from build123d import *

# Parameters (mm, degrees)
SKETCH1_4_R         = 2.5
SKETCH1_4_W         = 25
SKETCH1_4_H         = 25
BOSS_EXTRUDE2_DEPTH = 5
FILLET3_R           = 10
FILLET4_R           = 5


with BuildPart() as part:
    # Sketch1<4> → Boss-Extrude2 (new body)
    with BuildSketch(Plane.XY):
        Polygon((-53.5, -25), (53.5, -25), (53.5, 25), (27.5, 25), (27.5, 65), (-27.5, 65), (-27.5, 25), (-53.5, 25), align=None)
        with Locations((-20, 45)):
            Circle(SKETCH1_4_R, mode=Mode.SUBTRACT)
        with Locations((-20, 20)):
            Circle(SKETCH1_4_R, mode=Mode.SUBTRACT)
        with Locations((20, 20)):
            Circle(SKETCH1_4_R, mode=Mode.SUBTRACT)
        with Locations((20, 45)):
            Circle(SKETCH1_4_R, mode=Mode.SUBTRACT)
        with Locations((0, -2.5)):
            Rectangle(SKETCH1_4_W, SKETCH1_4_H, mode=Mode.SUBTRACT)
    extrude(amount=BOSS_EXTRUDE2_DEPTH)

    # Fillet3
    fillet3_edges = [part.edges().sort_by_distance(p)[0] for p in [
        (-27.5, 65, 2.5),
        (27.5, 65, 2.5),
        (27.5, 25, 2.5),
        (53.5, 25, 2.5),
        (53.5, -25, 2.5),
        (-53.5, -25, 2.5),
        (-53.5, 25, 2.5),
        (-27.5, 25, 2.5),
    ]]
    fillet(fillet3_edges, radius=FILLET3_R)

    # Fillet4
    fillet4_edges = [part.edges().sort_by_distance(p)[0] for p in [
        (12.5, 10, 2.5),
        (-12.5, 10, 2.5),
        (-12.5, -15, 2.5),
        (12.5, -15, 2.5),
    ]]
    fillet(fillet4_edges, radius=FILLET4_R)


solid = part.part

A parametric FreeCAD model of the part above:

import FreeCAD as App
import Part
import Sketcher


def edges_at(feature, points):
    """Names of the edges that pass closest to the given points."""
    edges = feature.Shape.Edges
    near = lambda p: min(range(len(edges)), key=lambda i: edges[i].distToShape(Part.Vertex(*p))[0])
    return sorted({f"Edge{near(p) + 1}" for p in points})


def add_polygon(sketch, points):
    """Adds a closed chain of lines whose ends are joined by coincident constraints."""
    first, n = sketch.GeometryCount, len(points)
    for a, b in zip(points, points[1:] + points[:1]):
        sketch.addGeometry(Part.LineSegment(App.Vector(*a, 0), App.Vector(*b, 0)), False)
    for i in range(n):
        sketch.addConstraint(Sketcher.Constraint("Coincident", first + i, 2, first + (i + 1) % n, 1))

doc = App.newDocument("Part")
body = doc.addObject("PartDesign::Body", "Body")

# Sketch on XY plane
sketch1 = body.newObject("Sketcher::SketchObject", "Sketch")
sketch1.AttachmentSupport = (doc.getObject("XY_Plane"), [""])
sketch1.MapMode = "FlatFace"
add_polygon(sketch1, [(-53.5, -25), (53.5, -25), (53.5, 25), (27.5, 25), (27.5, 65), (-27.5, 65), (-27.5, 25), (-53.5, 25)])  # lines 0-7
add_polygon(sketch1, [(12.5, -15), (-12.5, -15), (-12.5, 10), (12.5, 10)])  # lines 8-11
sketch1.addGeometry(Part.Circle(App.Vector(-20, 20, 0), App.Vector(0, 0, 1), 2.5), False)  # 12
sketch1.addGeometry(Part.Circle(App.Vector(-20, 45, 0), App.Vector(0, 0, 1), 2.5), False)  # 13
sketch1.addGeometry(Part.Circle(App.Vector(20, 20, 0), App.Vector(0, 0, 1), 2.5), False)  # 14
sketch1.addGeometry(Part.Circle(App.Vector(20, 45, 0), App.Vector(0, 0, 1), 2.5), False)  # 15
sketch1.addConstraint(Sketcher.Constraint("Horizontal", 0))
sketch1.addConstraint(Sketcher.Constraint("Vertical", 1))
sketch1.addConstraint(Sketcher.Constraint("Horizontal", 2))
sketch1.addConstraint(Sketcher.Constraint("Vertical", 3))
sketch1.addConstraint(Sketcher.Constraint("Horizontal", 4))
sketch1.addConstraint(Sketcher.Constraint("Vertical", 5))
sketch1.addConstraint(Sketcher.Constraint("Horizontal", 6))
sketch1.addConstraint(Sketcher.Constraint("Vertical", 7))
sketch1.addConstraint(Sketcher.Constraint("Horizontal", 8))
sketch1.addConstraint(Sketcher.Constraint("Vertical", 9))
sketch1.addConstraint(Sketcher.Constraint("Horizontal", 10))
sketch1.addConstraint(Sketcher.Constraint("Vertical", 11))
sketch1.addConstraint(Sketcher.Constraint("Equal", 12, 13))
sketch1.addConstraint(Sketcher.Constraint("Equal", 13, 14))
sketch1.addConstraint(Sketcher.Constraint("Equal", 14, 15))
sketch1.addConstraint(Sketcher.Constraint("Symmetric", 0, 2, 6, 2, -1, 1))
sketch1.addConstraint(Sketcher.Constraint("Symmetric", 12, 3, 14, 3, -2))
sketch1.addConstraint(Sketcher.Constraint("Symmetric", 13, 3, 15, 3, -2))
sketch1.addConstraint(Sketcher.Constraint("Symmetric", 2, 2, 5, 2, -2))
sketch1.addConstraint(Sketcher.Constraint("Vertical", 12, 3, 13, 3))
sketch1.addConstraint(Sketcher.Constraint("Equal", 10, 9))
sketch1.addConstraint(Sketcher.Constraint("Diameter", 12, 5.0))
sketch1.addConstraint(Sketcher.Constraint("DistanceX", 0, 1, 0, 2, 107.0))
sketch1.addConstraint(Sketcher.Constraint("DistanceX", 2, 2, 2, 1, 26.0))
sketch1.addConstraint(Sketcher.Constraint("DistanceX", 8, 2, 8, 1, 25.0))
sketch1.addConstraint(Sketcher.Constraint("DistanceY", 1, 1, 1, 2, 50.0))
sketch1.addConstraint(Sketcher.Constraint("DistanceY", 3, 1, 3, 2, 40.0))
sketch1.addConstraint(Sketcher.Constraint("DistanceX", 12, 3, -1, 1, 20.0))
sketch1.addConstraint(Sketcher.Constraint("DistanceY", -1, 1, 12, 3, 20.0))
sketch1.addConstraint(Sketcher.Constraint("DistanceY", -1, 1, 13, 3, 45.0))
sketch1.addConstraint(Sketcher.Constraint("DistanceY", 8, 2, -1, 1, 15.0))
sketch1.addConstraint(Sketcher.Constraint("DistanceX", 7, 2, 8, 2, 41.0))
pad1 = body.newObject("PartDesign::Pad", "Pad")
pad1.Profile = sketch1
pad1.Length = 5
doc.recompute()

fillet = body.newObject("PartDesign::Fillet", "Fillet")
fillet.Base = (pad1, edges_at(pad1, [
    (-27.5, 65, 2.5),
    (27.5, 65, 2.5),
    (27.5, 25, 2.5),
    (53.5, 25, 2.5),
    (53.5, -25, 2.5),
    (-53.5, -25, 2.5),
    (-53.5, 25, 2.5),
    (-27.5, 25, 2.5),
]))
fillet.Radius = 10
doc.recompute()

fillet2 = body.newObject("PartDesign::Fillet", "Fillet001")
fillet2.Base = (fillet, edges_at(fillet, [
    (12.5, 10, 2.5),
    (-12.5, 10, 2.5),
    (-12.5, -15, 2.5),
    (12.5, -15, 2.5),
]))
fillet2.Radius = 5

doc.recompute()
